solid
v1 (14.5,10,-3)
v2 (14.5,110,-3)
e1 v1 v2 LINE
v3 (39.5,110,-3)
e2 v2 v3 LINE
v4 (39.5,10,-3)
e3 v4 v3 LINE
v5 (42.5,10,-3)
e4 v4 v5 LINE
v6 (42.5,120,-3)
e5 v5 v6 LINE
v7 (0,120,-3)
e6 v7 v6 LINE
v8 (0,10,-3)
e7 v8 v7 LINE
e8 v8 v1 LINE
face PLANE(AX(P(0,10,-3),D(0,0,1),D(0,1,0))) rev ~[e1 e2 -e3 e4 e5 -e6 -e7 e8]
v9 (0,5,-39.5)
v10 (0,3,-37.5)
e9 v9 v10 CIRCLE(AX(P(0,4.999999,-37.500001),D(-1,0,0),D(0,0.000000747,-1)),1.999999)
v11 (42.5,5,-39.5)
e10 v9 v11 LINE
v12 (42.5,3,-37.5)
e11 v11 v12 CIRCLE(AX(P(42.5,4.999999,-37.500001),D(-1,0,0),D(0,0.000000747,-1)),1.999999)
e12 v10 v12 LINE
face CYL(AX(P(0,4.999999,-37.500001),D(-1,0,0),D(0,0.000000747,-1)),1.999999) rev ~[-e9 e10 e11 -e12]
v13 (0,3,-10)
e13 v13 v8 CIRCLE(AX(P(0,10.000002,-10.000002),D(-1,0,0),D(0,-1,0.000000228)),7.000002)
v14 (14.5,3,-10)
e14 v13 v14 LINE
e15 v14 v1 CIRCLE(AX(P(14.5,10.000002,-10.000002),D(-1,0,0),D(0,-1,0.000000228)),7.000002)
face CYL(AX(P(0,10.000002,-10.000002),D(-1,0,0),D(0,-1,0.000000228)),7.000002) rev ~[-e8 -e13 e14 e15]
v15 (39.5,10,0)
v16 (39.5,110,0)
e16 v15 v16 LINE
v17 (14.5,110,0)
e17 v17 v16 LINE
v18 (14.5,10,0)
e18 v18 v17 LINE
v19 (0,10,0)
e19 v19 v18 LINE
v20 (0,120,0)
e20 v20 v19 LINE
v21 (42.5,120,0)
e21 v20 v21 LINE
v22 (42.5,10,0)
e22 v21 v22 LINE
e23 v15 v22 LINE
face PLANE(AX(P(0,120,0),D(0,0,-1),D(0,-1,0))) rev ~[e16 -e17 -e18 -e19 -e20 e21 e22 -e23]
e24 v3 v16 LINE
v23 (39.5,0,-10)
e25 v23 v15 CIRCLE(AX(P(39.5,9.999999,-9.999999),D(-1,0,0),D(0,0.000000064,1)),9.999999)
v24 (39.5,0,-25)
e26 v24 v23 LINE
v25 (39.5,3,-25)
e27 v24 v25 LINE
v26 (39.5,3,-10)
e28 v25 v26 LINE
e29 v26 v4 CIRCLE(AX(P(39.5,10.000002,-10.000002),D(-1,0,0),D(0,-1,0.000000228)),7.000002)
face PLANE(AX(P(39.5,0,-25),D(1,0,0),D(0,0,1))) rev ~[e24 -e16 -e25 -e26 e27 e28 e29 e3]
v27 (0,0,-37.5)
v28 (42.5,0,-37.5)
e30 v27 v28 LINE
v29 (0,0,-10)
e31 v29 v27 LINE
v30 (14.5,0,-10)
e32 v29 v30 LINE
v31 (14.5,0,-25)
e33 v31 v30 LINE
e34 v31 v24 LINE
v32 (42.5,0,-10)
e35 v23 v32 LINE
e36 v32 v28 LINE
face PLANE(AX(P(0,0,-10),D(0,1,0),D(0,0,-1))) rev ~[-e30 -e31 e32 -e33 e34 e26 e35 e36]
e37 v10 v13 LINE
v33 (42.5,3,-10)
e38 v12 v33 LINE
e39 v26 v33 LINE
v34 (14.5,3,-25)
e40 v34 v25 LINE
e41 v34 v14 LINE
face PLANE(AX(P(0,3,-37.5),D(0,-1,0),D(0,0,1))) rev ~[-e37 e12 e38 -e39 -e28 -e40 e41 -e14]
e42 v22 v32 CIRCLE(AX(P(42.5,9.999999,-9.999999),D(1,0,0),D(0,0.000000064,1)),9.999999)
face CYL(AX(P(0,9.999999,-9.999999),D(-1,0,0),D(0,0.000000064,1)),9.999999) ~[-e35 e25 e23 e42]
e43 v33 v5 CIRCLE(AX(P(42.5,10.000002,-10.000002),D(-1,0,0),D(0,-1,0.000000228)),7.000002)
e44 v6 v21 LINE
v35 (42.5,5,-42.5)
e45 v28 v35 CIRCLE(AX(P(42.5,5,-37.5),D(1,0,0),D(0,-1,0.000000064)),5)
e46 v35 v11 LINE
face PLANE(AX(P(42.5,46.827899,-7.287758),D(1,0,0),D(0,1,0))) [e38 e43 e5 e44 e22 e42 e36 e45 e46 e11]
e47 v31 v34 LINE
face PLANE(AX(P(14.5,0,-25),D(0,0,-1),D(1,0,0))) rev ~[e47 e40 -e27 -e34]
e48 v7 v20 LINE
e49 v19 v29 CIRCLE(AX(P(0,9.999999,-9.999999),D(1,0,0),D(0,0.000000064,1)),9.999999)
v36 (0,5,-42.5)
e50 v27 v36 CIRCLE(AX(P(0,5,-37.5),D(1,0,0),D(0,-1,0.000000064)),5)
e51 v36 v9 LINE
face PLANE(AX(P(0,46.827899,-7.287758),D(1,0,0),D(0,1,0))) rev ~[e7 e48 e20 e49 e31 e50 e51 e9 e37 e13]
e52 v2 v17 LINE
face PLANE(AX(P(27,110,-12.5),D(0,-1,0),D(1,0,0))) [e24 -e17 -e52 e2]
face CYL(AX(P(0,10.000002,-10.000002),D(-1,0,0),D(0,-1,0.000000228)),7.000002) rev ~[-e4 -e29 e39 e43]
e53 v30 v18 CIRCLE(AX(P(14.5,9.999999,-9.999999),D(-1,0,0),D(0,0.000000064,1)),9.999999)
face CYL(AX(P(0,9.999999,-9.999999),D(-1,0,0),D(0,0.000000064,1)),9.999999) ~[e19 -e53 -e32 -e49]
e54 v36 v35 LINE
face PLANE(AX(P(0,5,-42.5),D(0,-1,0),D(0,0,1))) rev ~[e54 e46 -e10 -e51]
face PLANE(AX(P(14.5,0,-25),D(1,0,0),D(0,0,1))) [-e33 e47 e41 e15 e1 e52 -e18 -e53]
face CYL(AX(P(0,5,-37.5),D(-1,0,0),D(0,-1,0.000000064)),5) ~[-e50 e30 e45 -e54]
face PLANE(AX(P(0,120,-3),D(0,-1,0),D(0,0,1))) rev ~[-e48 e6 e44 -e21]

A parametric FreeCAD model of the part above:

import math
import FreeCAD as App
import Part
import Sketcher

doc = App.newDocument("Part")
params = doc.addObject("Spreadsheet::Sheet", "Params")
for row, (alias, value) in enumerate([
    ("sketch1_radius", "9.999999 mm"),
    ("sketch1_radius2", "5 mm"),
    ("sketch1_radius3", "1.999999 mm"),
    ("sketch1_width", "110 mm"),
    ("sketch1_height", "27.5 mm"),
    ("pad1_length", "42.5 mm"),
    ("sketch2_width", "25 mm"),
    ("pocket1_length", "110 mm"),
], start=1):
    params.set(f"A{row}", alias)
    params.set(f"B{row}", "=" + value)
    params.setAlias(f"B{row}", alias)

body = doc.addObject("PartDesign::Body", "Body")

# Sketch on YZ plane
sketch1 = body.newObject("Sketcher::SketchObject", "Sketch")
sketch1.AttachmentSupport = (doc.getObject("YZ_Plane"), [""])
sketch1.MapMode = "FlatFace"
sketch1.addGeometry(Part.LineSegment(App.Vector(120, -3, 0), App.Vector(120, 0, 0)), False)
sketch1.addGeometry(Part.LineSegment(App.Vector(120, 0, 0), App.Vector(10, 0, 0)), False)
sketch1.addGeometry(Part.ArcOfCircle(Part.Circle(App.Vector(10, -10, 0), App.Vector(0, 0, 1), 10), math.radians(90), math.radians(180)), False)
sketch1.addGeometry(Part.LineSegment(App.Vector(0, -10, 0), App.Vector(0, -37.5, 0)), False)
sketch1.addGeometry(Part.ArcOfCircle(Part.Circle(App.Vector(5, -37.5, 0), App.Vector(0, 0, 1), 5), math.radians(180), math.radians(270)), False)
sketch1.addGeometry(Part.LineSegment(App.Vector(5, -42.5, 0), App.Vector(5, -39.5, 0)), False)
sketch1.addGeometry(Part.ArcOfCircle(Part.Circle(App.Vector(5, -37.5, 0), App.Vector(0, 0, 1), 2), math.radians(180), math.radians(270)), False)
sketch1.addGeometry(Part.LineSegment(App.Vector(3, -37.5, 0), App.Vector(3, -10, 0)), False)
sketch1.addGeometry(Part.ArcOfCircle(Part.Circle(App.Vector(10, -10, 0), App.Vector(0, 0, 1), 7), math.radians(90), math.radians(180)), False)
sketch1.addGeometry(Part.LineSegment(App.Vector(10, -3, 0), App.Vector(120, -3, 0)), False)
sketch1.addConstraint(Sketcher.Constraint("Coincident", 0, 2, 1, 1))
sketch1.addConstraint(Sketcher.Constraint("Tangent", 1, 2, 2, 1))
sketch1.addConstraint(Sketcher.Constraint("Tangent", 2, 2, 3, 1))
sketch1.addConstraint(Sketcher.Constraint("Tangent", 3, 2, 4, 1))
sketch1.addConstraint(Sketcher.Constraint("Coincident", 4, 2, 5, 1))
sketch1.addConstraint(Sketcher.Constraint("Coincident", 5, 2, 6, 2))
sketch1.addConstraint(Sketcher.Constraint("Tangent", 6, 1, 7, 1))
sketch1.addConstraint(Sketcher.Constraint("Tangent", 7, 2, 8, 2))
sketch1.addConstraint(Sketcher.Constraint("Tangent", 8, 1, 9, 1))
sketch1.addConstraint(Sketcher.Constraint("Coincident", 9, 2, 0, 1))
sketch1.addConstraint(Sketcher.Constraint("Vertical", 0))
sketch1.addConstraint(Sketcher.Constraint("Horizontal", 1))
sketch1.addConstraint(Sketcher.Constraint("Vertical", 3))
sketch1.addConstraint(Sketcher.Constraint("Vertical", 5))
sketch1.addConstraint(Sketcher.Constraint("Vertical", 7))
sketch1.addConstraint(Sketcher.Constraint("Horizontal", 9))
sketch1.addConstraint(Sketcher.Constraint("Coincident", 6, 3, 4, 3))
sketch1.addConstraint(Sketcher.Constraint("Coincident", 8, 3, 2, 3))
sketch1.addConstraint(Sketcher.Constraint("PointOnObject", 0, 2, -1))
sketch1.addConstraint(Sketcher.Constraint("PointOnObject", 2, 2, -2))
sketch1.addConstraint(Sketcher.Constraint("Vertical", 6, 3, 4, 2))
sketch1.addConstraint(Sketcher.Constraint("Radius", 2, 9.999999))
sketch1.addConstraint(Sketcher.Constraint("Radius", 4, 5.0))
sketch1.addConstraint(Sketcher.Constraint("Radius", 6, 1.999999))
sketch1.addConstraint(Sketcher.Constraint("DistanceX", 1, 2, 1, 1, 110.0))
sketch1.addConstraint(Sketcher.Constraint("DistanceY", 3, 2, 3, 1, 27.5))
sketch1.setExpression("Constraints[21]", "Params.sketch1_radius")
sketch1.setExpression("Constraints[22]", "Params.sketch1_radius2")
sketch1.setExpression("Constraints[23]", "Params.sketch1_radius3")
sketch1.setExpression("Constraints[24]", "Params.sketch1_width")
sketch1.setExpression("Constraints[25]", "Params.sketch1_height")
pad1 = body.newObject("PartDesign::Pad", "Pad")
pad1.Profile = sketch1
pad1.setExpression("Length", "Params.pad1_length")

# Sketch on XZ plane
sketch2 = body.newObject("Sketcher::SketchObject", "Sketch001")
sketch2.AttachmentSupport = (doc.getObject("XZ_Plane"), [""])
sketch2.MapMode = "FlatFace"
sketch2.addGeometry(Part.LineSegment(App.Vector(14, 0, 0), App.Vector(14, -25, 0)), False)
sketch2.addGeometry(Part.LineSegment(App.Vector(14, -25, 0), App.Vector(40, -25, 0)), False)
sketch2.addGeometry(Part.LineSegment(App.Vector(40, -25, 0), App.Vector(40, 0, 0)), False)
sketch2.addGeometry(Part.LineSegment(App.Vector(40, 0, 0), App.Vector(14, 0, 0)), False)
sketch2.addConstraint(Sketcher.Constraint("Coincident", 0, 2, 1, 1))
sketch2.addConstraint(Sketcher.Constraint("Coincident", 1, 2, 2, 1))
sketch2.addConstraint(Sketcher.Constraint("Coincident", 2, 2, 3, 1))
sketch2.addConstraint(Sketcher.Constraint("Coincident", 3, 2, 0, 1))
sketch2.addConstraint(Sketcher.Constraint("Vertical", 0))
sketch2.addConstraint(Sketcher.Constraint("Horizontal", 1))
sketch2.addConstraint(Sketcher.Constraint("Vertical", 2))
sketch2.addConstraint(Sketcher.Constraint("Horizontal", 3))
sketch2.addConstraint(Sketcher.Constraint("PointOnObject", 2, 2, -1))
sketch2.addConstraint(Sketcher.Constraint("Equal", 3, 0))
sketch2.addConstraint(Sketcher.Constraint("DistanceX", 1, 1, 1, 2, 25.0))
sketch2.addConstraint(Sketcher.Constraint("DistanceX", -1, 1, 0, 2, 14.5))
sketch2.setExpression("Constraints[10]", "Params.sketch2_width")
pocket1 = body.newObject("PartDesign::Pocket", "Pocket")
pocket1.Profile = sketch2
pocket1.setExpression("Length", "Params.pocket1_length")

doc.recompute()
